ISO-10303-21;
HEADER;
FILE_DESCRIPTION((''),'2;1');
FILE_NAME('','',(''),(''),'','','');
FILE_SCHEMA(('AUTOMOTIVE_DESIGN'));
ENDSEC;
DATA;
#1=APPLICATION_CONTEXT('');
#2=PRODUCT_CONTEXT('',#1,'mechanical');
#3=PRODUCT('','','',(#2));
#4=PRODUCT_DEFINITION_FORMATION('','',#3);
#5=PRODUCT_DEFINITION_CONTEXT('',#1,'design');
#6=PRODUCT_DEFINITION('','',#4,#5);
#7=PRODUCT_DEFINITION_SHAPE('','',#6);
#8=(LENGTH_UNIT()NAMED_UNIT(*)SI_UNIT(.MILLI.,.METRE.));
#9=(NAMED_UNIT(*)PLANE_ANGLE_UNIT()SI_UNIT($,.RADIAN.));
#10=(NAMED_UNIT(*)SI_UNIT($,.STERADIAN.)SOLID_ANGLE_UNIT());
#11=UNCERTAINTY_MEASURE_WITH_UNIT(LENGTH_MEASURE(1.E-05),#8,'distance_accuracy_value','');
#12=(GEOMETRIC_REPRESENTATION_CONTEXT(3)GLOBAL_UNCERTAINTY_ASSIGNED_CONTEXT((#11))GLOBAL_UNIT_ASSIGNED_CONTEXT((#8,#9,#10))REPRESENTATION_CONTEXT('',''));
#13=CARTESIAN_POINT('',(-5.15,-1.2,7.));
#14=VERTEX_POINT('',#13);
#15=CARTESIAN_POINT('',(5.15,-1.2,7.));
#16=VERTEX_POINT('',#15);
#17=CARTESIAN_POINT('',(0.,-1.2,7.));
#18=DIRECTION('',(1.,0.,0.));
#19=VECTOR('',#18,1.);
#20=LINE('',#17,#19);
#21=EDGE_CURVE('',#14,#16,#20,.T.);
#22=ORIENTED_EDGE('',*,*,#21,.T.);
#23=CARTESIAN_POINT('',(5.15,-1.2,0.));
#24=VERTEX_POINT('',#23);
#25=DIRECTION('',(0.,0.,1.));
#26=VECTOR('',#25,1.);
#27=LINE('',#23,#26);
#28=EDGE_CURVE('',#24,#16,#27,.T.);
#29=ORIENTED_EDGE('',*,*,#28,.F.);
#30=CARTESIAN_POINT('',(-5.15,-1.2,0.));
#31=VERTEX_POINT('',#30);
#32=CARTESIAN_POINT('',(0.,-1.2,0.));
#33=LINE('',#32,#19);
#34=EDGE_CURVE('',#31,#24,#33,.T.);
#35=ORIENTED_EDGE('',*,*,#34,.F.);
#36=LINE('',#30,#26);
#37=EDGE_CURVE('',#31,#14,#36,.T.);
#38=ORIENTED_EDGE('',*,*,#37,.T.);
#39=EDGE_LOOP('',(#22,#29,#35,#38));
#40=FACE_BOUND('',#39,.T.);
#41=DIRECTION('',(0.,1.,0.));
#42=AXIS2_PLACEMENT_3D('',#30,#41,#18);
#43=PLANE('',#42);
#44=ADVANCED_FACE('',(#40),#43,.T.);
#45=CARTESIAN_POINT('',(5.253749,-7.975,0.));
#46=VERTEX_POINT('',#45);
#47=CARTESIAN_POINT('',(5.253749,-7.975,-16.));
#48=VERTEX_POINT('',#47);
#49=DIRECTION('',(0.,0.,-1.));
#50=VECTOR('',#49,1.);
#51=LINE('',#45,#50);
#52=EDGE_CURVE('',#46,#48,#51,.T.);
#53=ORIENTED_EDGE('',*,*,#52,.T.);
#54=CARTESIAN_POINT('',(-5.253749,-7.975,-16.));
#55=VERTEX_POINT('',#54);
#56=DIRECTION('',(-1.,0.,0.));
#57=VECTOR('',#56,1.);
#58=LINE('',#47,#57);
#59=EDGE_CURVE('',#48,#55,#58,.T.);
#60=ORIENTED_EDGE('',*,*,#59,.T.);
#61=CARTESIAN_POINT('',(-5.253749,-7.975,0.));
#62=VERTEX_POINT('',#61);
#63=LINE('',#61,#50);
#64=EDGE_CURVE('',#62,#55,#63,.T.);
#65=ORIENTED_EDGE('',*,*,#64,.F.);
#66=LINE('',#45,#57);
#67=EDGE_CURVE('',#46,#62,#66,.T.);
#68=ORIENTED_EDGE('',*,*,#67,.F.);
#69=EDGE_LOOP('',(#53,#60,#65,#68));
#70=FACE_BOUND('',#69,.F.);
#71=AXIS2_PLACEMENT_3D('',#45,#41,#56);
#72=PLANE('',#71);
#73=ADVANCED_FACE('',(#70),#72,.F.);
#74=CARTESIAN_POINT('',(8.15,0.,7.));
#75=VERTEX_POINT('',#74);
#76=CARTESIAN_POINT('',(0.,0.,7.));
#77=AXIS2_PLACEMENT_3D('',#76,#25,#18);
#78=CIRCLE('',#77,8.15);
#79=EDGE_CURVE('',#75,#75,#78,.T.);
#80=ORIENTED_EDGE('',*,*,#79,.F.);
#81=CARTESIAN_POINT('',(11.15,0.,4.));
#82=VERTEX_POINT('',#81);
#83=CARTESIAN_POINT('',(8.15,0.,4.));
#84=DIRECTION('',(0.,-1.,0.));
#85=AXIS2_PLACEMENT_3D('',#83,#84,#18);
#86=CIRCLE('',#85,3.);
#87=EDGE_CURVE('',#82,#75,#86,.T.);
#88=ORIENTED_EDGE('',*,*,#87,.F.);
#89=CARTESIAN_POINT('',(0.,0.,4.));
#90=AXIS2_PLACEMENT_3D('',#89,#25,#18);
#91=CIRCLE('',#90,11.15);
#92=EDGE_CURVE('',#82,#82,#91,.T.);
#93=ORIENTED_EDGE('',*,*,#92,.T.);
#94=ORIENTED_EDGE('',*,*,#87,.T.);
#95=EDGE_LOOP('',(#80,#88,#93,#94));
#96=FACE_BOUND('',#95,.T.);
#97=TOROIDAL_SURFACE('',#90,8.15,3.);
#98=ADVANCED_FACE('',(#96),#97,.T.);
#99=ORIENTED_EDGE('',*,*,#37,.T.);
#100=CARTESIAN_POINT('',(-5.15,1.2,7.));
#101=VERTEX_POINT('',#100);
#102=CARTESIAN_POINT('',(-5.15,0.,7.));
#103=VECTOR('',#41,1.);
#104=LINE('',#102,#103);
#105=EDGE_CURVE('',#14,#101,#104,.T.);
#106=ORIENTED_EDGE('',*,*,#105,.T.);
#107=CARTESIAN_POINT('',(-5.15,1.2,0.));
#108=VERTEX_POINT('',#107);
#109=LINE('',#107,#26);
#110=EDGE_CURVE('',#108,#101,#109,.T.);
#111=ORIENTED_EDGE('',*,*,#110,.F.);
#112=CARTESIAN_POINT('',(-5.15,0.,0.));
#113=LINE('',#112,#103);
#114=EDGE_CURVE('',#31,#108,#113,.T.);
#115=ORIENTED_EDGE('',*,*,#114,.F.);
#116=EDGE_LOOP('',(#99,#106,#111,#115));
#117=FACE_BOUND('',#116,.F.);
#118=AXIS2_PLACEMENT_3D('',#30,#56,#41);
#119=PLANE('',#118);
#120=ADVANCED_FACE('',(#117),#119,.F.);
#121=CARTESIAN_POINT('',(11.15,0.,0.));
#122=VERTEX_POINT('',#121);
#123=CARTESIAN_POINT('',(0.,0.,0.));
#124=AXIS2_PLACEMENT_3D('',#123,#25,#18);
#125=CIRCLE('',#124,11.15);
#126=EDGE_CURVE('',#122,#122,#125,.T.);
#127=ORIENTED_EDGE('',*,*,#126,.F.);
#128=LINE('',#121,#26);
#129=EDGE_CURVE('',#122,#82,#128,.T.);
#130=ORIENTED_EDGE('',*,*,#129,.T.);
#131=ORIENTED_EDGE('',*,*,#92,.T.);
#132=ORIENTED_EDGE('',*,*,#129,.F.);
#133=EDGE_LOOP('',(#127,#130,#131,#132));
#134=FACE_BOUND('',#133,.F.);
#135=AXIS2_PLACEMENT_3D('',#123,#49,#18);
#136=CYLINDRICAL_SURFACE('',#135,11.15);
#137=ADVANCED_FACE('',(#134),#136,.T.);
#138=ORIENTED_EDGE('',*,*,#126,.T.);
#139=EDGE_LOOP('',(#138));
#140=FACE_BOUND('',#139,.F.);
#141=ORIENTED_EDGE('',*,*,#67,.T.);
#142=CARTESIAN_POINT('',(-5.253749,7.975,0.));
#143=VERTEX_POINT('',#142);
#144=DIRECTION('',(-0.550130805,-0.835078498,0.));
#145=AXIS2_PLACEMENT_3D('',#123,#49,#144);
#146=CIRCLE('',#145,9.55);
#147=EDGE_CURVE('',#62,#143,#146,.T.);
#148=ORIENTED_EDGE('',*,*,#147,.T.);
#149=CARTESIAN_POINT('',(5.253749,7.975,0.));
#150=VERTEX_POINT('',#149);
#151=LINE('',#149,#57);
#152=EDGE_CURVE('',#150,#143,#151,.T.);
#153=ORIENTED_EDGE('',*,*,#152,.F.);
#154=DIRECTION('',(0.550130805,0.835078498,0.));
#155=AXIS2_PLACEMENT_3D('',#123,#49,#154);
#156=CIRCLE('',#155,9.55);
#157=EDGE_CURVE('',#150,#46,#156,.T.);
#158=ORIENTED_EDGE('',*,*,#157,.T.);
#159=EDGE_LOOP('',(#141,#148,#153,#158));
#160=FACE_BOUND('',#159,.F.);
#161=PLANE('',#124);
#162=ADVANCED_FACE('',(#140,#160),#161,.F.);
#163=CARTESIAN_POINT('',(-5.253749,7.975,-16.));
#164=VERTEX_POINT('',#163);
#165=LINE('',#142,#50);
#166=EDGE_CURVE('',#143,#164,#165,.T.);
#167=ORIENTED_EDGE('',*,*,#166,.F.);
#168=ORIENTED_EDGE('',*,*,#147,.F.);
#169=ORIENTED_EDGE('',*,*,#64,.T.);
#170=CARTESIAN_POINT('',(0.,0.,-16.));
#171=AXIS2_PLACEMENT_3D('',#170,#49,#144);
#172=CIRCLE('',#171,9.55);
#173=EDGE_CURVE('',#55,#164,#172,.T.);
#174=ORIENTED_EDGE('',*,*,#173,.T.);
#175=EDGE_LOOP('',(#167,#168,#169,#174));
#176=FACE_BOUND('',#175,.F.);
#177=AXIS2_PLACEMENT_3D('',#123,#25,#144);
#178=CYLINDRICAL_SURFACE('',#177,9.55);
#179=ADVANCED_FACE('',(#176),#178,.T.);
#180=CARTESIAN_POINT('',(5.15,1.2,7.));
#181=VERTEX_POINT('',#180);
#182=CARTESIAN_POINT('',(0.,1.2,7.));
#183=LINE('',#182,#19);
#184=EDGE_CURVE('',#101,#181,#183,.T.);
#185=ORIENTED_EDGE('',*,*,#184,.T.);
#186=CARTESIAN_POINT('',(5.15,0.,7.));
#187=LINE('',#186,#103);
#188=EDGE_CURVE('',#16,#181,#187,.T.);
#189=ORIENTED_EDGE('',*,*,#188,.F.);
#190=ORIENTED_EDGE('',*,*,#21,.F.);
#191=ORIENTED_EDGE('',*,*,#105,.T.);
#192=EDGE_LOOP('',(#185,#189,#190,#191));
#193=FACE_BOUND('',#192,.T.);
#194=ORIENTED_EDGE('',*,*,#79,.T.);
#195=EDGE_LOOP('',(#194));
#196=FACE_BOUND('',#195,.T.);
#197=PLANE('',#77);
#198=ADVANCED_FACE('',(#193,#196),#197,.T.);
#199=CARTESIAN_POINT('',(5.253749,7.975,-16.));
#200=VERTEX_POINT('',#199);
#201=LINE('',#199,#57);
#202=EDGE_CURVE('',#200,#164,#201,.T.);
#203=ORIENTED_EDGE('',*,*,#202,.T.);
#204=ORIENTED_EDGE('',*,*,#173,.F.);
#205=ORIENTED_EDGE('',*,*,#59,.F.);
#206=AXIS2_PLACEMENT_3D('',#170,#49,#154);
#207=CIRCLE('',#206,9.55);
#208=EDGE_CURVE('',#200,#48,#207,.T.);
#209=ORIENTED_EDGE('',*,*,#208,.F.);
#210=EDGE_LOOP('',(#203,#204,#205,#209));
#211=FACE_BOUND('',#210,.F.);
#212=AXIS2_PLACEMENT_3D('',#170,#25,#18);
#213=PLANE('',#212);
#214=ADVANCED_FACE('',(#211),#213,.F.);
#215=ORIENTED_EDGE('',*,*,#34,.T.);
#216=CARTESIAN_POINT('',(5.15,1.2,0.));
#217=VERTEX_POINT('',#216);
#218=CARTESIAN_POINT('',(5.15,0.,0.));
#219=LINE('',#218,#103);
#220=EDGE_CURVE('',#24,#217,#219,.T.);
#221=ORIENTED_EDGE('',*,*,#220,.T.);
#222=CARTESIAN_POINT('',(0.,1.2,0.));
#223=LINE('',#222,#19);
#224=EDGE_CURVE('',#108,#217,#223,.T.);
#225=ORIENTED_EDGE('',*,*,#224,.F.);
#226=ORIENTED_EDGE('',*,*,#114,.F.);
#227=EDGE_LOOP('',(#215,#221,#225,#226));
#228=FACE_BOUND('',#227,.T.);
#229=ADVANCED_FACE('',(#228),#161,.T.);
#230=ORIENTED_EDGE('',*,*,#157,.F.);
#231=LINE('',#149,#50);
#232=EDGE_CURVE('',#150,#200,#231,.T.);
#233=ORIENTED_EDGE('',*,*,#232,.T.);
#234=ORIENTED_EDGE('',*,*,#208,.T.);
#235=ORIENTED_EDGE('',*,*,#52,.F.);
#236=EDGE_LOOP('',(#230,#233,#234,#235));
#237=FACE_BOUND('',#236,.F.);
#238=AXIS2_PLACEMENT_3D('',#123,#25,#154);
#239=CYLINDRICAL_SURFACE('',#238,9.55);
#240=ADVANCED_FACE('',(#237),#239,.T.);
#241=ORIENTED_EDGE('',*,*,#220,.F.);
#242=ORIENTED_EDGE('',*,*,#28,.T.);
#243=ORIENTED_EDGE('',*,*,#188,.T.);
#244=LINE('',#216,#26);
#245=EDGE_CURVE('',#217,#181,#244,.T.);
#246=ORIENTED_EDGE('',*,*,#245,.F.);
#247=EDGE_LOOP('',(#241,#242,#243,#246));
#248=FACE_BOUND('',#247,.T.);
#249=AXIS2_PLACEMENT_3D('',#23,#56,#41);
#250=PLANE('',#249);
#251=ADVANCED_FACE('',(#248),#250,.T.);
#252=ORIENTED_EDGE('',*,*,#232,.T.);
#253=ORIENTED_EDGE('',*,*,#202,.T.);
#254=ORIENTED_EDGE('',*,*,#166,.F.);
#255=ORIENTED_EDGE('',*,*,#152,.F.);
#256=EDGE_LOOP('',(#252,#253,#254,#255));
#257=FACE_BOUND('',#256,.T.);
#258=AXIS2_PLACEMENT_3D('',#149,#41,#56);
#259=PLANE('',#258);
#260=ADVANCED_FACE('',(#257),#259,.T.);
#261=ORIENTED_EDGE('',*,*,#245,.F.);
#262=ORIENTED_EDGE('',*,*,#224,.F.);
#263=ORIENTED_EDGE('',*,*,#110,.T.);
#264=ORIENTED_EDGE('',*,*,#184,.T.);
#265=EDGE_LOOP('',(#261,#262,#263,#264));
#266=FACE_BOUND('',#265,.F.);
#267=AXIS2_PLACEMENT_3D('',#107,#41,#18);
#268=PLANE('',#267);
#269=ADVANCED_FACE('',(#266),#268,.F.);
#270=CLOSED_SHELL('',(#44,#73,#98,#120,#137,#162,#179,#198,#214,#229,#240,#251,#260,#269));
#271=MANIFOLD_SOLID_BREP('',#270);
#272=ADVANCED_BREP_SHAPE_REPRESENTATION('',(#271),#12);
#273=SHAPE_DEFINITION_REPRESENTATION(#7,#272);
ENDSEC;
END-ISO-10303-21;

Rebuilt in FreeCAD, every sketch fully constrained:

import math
import FreeCAD as App
import Part
import Sketcher


def edges_at(feature, points):
    """Names of the edges that pass closest to the given points."""
    edges = feature.Shape.Edges
    near = lambda p: min(range(len(edges)), key=lambda i: edges[i].distToShape(Part.Vertex(*p))[0])
    return sorted({f"Edge{near(p) + 1}" for p in points})


def add_polygon(sketch, points):
    """Adds a closed chain of lines whose ends are joined by coincident constraints."""
    first, n = sketch.GeometryCount, len(points)
    for a, b in zip(points, points[1:] + points[:1]):
        sketch.addGeometry(Part.LineSegment(App.Vector(*a, 0), App.Vector(*b, 0)), False)
    for i in range(n):
        sketch.addConstraint(Sketcher.Constraint("Coincident", first + i, 2, first + (i + 1) % n, 1))

doc = App.newDocument("Part")
body = doc.addObject("PartDesign::Body", "Body")

sketch1 = body.newObject("Sketcher::SketchObject", "Sketch")
sketch1.AttachmentSupport = (doc.getObject("XY_Plane"), [""])
sketch1.MapMode = "FlatFace"
sketch1.addGeometry(Part.Circle(App.Vector(0, 0, 0), App.Vector(0, 0, 1), 11.2), False)
add_polygon(sketch1, [(5.2, -1.2), (-5.2, -1.2), (-5.2, 1.2), (5.2, 1.2)])
sketch1.addConstraint([
    Sketcher.Constraint("Horizontal", 1),
    Sketcher.Constraint("Vertical", 2),
    Sketcher.Constraint("Horizontal", 3),
    Sketcher.Constraint("Vertical", 4),
    Sketcher.Constraint("Coincident", 0, 3, -1, 1),
    Sketcher.Constraint("Symmetric", 1, 2, 3, 2, -1, 1),
    Sketcher.Constraint("Diameter", 0, 22.3),
    Sketcher.Constraint("DistanceX", 1, 2, 1, 1, 10.3),
    Sketcher.Constraint("DistanceY", 2, 1, 2, 2, 2.4),
])
pad1 = body.newObject("PartDesign::Pad", "Pad")
pad1.Profile = sketch1
pad1.Length = 7

sketch2 = body.newObject("Sketcher::SketchObject", "Sketch001")
sketch2.AttachmentSupport = (doc.getObject("XY_Plane"), [""])
sketch2.MapMode = "FlatFace"
sketch2.addGeometry([
    Part.LineSegment(App.Vector(-5, 8, 0), App.Vector(5, 8, 0)),
    Part.ArcOfCircle(Part.Circle(App.Vector(0, 0, 0), App.Vector(0, 0, 1), 10), math.radians(-57), math.radians(57)),
    Part.LineSegment(App.Vector(5, -8, 0), App.Vector(-5, -8, 0)),
    Part.ArcOfCircle(Part.Circle(App.Vector(0, 0, 0), App.Vector(0, 0, 1), 10), math.radians(123), math.radians(237)),
], False)
sketch2.addConstraint([
    Sketcher.Constraint("Coincident", 0, 2, 1, 2),
    Sketcher.Constraint("Coincident", 1, 1, 2, 1),
    Sketcher.Constraint("Coincident", 2, 2, 3, 2),
    Sketcher.Constraint("Coincident", 3, 1, 0, 1),
    Sketcher.Constraint("Horizontal", 0),
    Sketcher.Constraint("Horizontal", 2),
    Sketcher.Constraint("Coincident", 1, 3, -1, 1),
    Sketcher.Constraint("Coincident", 3, 3, -1, 1),
    Sketcher.Constraint("Equal", 1, 3),
    Sketcher.Constraint("Vertical", 0, 2, 1, 1),
    Sketcher.Constraint("Radius", 1, 9.55),
    Sketcher.Constraint("DistanceY", 1, 1, 0, 2, 15.95),
])
pad2 = body.newObject("PartDesign::Pad", "Pad001")
pad2.Profile = sketch2
pad2.Length = 16
pad2.Reversed = True
doc.recompute()

fillet = body.newObject("PartDesign::Fillet", "Fillet")
fillet.Base = (pad2, edges_at(pad2, [(-11.15, 0, 7)]))
fillet.Radius = 3

doc.recompute()
